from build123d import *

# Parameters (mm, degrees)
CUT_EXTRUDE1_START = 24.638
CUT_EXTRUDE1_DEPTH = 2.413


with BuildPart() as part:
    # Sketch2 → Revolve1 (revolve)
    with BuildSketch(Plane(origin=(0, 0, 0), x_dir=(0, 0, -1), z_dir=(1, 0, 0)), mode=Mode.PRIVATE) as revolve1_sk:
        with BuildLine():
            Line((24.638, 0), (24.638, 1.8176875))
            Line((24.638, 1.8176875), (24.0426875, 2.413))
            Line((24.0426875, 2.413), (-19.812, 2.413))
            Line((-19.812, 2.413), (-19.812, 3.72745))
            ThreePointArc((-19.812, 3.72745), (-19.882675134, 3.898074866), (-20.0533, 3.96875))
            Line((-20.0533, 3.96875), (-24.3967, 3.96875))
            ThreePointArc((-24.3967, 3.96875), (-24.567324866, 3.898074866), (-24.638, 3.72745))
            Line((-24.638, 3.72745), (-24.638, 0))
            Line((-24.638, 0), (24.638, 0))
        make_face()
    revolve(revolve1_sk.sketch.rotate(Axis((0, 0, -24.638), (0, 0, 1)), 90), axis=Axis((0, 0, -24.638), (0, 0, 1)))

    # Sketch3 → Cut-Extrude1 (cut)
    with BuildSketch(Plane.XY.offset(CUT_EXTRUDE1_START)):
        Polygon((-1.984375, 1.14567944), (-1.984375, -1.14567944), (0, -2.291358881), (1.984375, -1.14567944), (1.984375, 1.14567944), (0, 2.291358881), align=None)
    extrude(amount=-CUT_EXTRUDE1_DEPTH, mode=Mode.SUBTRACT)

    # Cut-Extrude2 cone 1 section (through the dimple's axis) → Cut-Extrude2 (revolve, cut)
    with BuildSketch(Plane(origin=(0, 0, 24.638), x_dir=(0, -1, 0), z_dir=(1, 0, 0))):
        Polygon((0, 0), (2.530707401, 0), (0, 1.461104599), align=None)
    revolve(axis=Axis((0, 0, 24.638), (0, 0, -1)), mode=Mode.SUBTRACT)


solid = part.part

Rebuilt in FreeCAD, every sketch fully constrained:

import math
import FreeCAD as App
import Part
import Sketcher
from FreeCAD import Vector
Q = App.Units.Quantity

doc = App.newDocument("Part")
body = doc.addObject("PartDesign::Body", "Body")

sketch1 = body.newObject("Sketcher::SketchObject", "Sketch")
sketch1.AttachmentSupport = (doc.getObject("YZ_Plane"), [""])
sketch1.MapMode = "FlatFace"
sketch1.addGeometry(Part.LineSegment(Vector(0, -24.64, 0), Vector(1.82, -24.64, 0)), False)
sketch1.addGeometry(Part.LineSegment(Vector(1.82, -24.64, 0), Vector(2.41, -24.04, 0)), False)
sketch1.addGeometry(Part.LineSegment(Vector(2.41, -24.04, 0), Vector(2.41, 19.81, 0)), False)
sketch1.addGeometry(Part.LineSegment(Vector(2.41, 19.81, 0), Vector(3.73, 19.81, 0)), False)
sketch1.addGeometry(Part.ArcOfCircle(Part.Circle(Vector(3.73, 20.05, 0), Vector(0, 0, 1), 0.24), math.radians(-90), math.radians(0)), False)
sketch1.addGeometry(Part.LineSegment(Vector(3.97, 20.05, 0), Vector(3.97, 24.4, 0)), False)
sketch1.addGeometry(Part.ArcOfCircle(Part.Circle(Vector(3.73, 24.4, 0), Vector(0, 0, 1), 0.24), math.radians(0), math.radians(90)), False)
sketch1.addGeometry(Part.LineSegment(Vector(3.73, 24.64, 0), Vector(0, 24.64, 0)), False)
sketch1.addGeometry(Part.LineSegment(Vector(0, 24.64, 0), Vector(0, -24.64, 0)), False)
sketch1.addConstraint(Sketcher.Constraint("Coincident", 0, 2, 1, 1))
sketch1.addConstraint(Sketcher.Constraint("Coincident", 1, 2, 2, 1))
sketch1.addConstraint(Sketcher.Constraint("Coincident", 2, 2, 3, 1))
sketch1.addConstraint(Sketcher.Constraint("Tangent", 3, 2, 4, 1))
sketch1.addConstraint(Sketcher.Constraint("Tangent", 4, 2, 5, 1))
sketch1.addConstraint(Sketcher.Constraint("Tangent", 5, 2, 6, 1))
sketch1.addConstraint(Sketcher.Constraint("Tangent", 6, 2, 7, 1))
sketch1.addConstraint(Sketcher.Constraint("Coincident", 7, 2, 8, 1))
sketch1.addConstraint(Sketcher.Constraint("Coincident", 8, 2, 0, 1))
sketch1.addConstraint(Sketcher.Constraint("Horizontal", 0))
sketch1.addConstraint(Sketcher.Constraint("Vertical", 2))
sketch1.addConstraint(Sketcher.Constraint("Horizontal", 3))
sketch1.addConstraint(Sketcher.Constraint("Vertical", 5))
sketch1.addConstraint(Sketcher.Constraint("Horizontal", 7))
sketch1.addConstraint(Sketcher.Constraint("Vertical", 8))
sketch1.addConstraint(Sketcher.Constraint("Equal", 4, 6))
sketch1.addConstraint(Sketcher.Constraint("Symmetric", 7, 2, 8, 2, -1, 1))
sketch1.addConstraint(Sketcher.Constraint("Angle", 1, Q("45 deg")))
sketch1.addConstraint(Sketcher.Constraint("DistanceY", 8, 2, 8, 1, Q("1.94 in")))
sketch1.addConstraint(Sketcher.Constraint("Radius", 4, Q("0.0095 in")))
sketch1.addConstraint(Sketcher.Constraint("DistanceY", 5, 1, 5, 2, Q("0.171 in")))
sketch1.addConstraint(Sketcher.Constraint("DistanceX", -1, 1, 1, 2, Q("0.095 in")))
sketch1.addConstraint(Sketcher.Constraint("DistanceX", -1, 1, 4, 2, Q("0.15625 in")))
sketch1.addConstraint(Sketcher.Constraint("Distance", 1, 0.841899))
revolution = body.newObject("PartDesign::Revolution", "Revolution")
revolution.Profile = sketch1
revolution.ReferenceAxis = (sketch1, ["V_Axis"])
revolution.Angle = 360

sketch2 = body.newObject("Sketcher::SketchObject", "Sketch001")
sketch2.AttachmentSupport = (doc.getObject("XY_Plane"), [""])
sketch2.MapMode = "FlatFace"
sketch2.AttachmentOffset = App.Placement(Vector(0, 0, 0.97 * 25.4), App.Rotation())
sketch2.addGeometry(Part.LineSegment(Vector(-2, 1.1, 0), Vector(-2, -1.1, 0)), False)
sketch2.addGeometry(Part.LineSegment(Vector(-2, -1.1, 0), Vector(0, -2.3, 0)), False)
sketch2.addGeometry(Part.LineSegment(Vector(0, -2.3, 0), Vector(2, -1.1, 0)), False)
sketch2.addGeometry(Part.LineSegment(Vector(2, -1.1, 0), Vector(2, 1.1, 0)), False)
sketch2.addGeometry(Part.LineSegment(Vector(2, 1.1, 0), Vector(0, 2.3, 0)), False)
sketch2.addGeometry(Part.LineSegment(Vector(0, 2.3, 0), Vector(-2, 1.1, 0)), False)
sketch2.addConstraint(Sketcher.Constraint("Coincident", 0, 2, 1, 1))
sketch2.addConstraint(Sketcher.Constraint("Coincident", 1, 2, 2, 1))
sketch2.addConstraint(Sketcher.Constraint("Coincident", 2, 2, 3, 1))
sketch2.addConstraint(Sketcher.Constraint("Coincident", 3, 2, 4, 1))
sketch2.addConstraint(Sketcher.Constraint("Coincident", 4, 2, 5, 1))
sketch2.addConstraint(Sketcher.Constraint("Coincident", 5, 2, 0, 1))
sketch2.addConstraint(Sketcher.Constraint("Vertical", 0))
sketch2.addConstraint(Sketcher.Constraint("Vertical", 3))
sketch2.addConstraint(Sketcher.Constraint("Symmetric", 0, 2, 3, 2, -1, 1))
sketch2.addConstraint(Sketcher.Constraint("Symmetric", 1, 2, 4, 2, -1, 1))
sketch2.addConstraint(Sketcher.Constraint("PointOnObject", 1, 2, -2))
sketch2.addConstraint(Sketcher.Constraint("Parallel", 2, 5))
sketch2.addConstraint(Sketcher.Constraint("Horizontal", 0, 2, 2, 2))
sketch2.addConstraint(Sketcher.Constraint("Angle", 1, Q("-30 deg")))
sketch2.addConstraint(Sketcher.Constraint("DistanceX", 0, 2, -1, 1, Q("0.078125 in")))
sketch2.addConstraint(Sketcher.Constraint("DistanceY", 0, 2, 0, 1, 2.291359))
pocket1 = body.newObject("PartDesign::Pocket", "Pocket")
pocket1.Profile = sketch2
pocket1.Length = Q("0.095 in")

sketch3 = body.newObject("Sketcher::SketchObject", "Sketch002")
sketch3.AttachmentSupport = (doc.getObject("YZ_Plane"), [""])
sketch3.MapMode = "FlatFace"
sketch3.addGeometry(Part.LineSegment(Vector(0, 24.6, 0), Vector(-2.5, 24.6, 0)), False)
sketch3.addGeometry(Part.LineSegment(Vector(-2.5, 24.6, 0), Vector(0, 23.2, 0)), False)
sketch3.addGeometry(Part.LineSegment(Vector(0, 23.2, 0), Vector(0, 24.6, 0)), False)
sketch3.addConstraint(Sketcher.Constraint("Coincident", 0, 2, 1, 1))
sketch3.addConstraint(Sketcher.Constraint("Coincident", 1, 2, 2, 1))
sketch3.addConstraint(Sketcher.Constraint("Coincident", 2, 2, 0, 1))
sketch3.addConstraint(Sketcher.Constraint("Horizontal", 0))
sketch3.addConstraint(Sketcher.Constraint("Vertical", 2))
sketch3.addConstraint(Sketcher.Constraint("PointOnObject", 1, 2, -2))
sketch3.addConstraint(Sketcher.Constraint("Angle", 1, Q("-30 deg")))
sketch3.addConstraint(Sketcher.Constraint("DistanceY", -1, 1, 0, 2, Q("0.97 in")))
sketch3.addConstraint(Sketcher.Constraint("Distance", 1, 2.922209))
groove = body.newObject("PartDesign::Groove", "Groove")
groove.Profile = sketch3
groove.ReferenceAxis = (sketch3, ["V_Axis"])
groove.Angle = 360

doc.recompute()
